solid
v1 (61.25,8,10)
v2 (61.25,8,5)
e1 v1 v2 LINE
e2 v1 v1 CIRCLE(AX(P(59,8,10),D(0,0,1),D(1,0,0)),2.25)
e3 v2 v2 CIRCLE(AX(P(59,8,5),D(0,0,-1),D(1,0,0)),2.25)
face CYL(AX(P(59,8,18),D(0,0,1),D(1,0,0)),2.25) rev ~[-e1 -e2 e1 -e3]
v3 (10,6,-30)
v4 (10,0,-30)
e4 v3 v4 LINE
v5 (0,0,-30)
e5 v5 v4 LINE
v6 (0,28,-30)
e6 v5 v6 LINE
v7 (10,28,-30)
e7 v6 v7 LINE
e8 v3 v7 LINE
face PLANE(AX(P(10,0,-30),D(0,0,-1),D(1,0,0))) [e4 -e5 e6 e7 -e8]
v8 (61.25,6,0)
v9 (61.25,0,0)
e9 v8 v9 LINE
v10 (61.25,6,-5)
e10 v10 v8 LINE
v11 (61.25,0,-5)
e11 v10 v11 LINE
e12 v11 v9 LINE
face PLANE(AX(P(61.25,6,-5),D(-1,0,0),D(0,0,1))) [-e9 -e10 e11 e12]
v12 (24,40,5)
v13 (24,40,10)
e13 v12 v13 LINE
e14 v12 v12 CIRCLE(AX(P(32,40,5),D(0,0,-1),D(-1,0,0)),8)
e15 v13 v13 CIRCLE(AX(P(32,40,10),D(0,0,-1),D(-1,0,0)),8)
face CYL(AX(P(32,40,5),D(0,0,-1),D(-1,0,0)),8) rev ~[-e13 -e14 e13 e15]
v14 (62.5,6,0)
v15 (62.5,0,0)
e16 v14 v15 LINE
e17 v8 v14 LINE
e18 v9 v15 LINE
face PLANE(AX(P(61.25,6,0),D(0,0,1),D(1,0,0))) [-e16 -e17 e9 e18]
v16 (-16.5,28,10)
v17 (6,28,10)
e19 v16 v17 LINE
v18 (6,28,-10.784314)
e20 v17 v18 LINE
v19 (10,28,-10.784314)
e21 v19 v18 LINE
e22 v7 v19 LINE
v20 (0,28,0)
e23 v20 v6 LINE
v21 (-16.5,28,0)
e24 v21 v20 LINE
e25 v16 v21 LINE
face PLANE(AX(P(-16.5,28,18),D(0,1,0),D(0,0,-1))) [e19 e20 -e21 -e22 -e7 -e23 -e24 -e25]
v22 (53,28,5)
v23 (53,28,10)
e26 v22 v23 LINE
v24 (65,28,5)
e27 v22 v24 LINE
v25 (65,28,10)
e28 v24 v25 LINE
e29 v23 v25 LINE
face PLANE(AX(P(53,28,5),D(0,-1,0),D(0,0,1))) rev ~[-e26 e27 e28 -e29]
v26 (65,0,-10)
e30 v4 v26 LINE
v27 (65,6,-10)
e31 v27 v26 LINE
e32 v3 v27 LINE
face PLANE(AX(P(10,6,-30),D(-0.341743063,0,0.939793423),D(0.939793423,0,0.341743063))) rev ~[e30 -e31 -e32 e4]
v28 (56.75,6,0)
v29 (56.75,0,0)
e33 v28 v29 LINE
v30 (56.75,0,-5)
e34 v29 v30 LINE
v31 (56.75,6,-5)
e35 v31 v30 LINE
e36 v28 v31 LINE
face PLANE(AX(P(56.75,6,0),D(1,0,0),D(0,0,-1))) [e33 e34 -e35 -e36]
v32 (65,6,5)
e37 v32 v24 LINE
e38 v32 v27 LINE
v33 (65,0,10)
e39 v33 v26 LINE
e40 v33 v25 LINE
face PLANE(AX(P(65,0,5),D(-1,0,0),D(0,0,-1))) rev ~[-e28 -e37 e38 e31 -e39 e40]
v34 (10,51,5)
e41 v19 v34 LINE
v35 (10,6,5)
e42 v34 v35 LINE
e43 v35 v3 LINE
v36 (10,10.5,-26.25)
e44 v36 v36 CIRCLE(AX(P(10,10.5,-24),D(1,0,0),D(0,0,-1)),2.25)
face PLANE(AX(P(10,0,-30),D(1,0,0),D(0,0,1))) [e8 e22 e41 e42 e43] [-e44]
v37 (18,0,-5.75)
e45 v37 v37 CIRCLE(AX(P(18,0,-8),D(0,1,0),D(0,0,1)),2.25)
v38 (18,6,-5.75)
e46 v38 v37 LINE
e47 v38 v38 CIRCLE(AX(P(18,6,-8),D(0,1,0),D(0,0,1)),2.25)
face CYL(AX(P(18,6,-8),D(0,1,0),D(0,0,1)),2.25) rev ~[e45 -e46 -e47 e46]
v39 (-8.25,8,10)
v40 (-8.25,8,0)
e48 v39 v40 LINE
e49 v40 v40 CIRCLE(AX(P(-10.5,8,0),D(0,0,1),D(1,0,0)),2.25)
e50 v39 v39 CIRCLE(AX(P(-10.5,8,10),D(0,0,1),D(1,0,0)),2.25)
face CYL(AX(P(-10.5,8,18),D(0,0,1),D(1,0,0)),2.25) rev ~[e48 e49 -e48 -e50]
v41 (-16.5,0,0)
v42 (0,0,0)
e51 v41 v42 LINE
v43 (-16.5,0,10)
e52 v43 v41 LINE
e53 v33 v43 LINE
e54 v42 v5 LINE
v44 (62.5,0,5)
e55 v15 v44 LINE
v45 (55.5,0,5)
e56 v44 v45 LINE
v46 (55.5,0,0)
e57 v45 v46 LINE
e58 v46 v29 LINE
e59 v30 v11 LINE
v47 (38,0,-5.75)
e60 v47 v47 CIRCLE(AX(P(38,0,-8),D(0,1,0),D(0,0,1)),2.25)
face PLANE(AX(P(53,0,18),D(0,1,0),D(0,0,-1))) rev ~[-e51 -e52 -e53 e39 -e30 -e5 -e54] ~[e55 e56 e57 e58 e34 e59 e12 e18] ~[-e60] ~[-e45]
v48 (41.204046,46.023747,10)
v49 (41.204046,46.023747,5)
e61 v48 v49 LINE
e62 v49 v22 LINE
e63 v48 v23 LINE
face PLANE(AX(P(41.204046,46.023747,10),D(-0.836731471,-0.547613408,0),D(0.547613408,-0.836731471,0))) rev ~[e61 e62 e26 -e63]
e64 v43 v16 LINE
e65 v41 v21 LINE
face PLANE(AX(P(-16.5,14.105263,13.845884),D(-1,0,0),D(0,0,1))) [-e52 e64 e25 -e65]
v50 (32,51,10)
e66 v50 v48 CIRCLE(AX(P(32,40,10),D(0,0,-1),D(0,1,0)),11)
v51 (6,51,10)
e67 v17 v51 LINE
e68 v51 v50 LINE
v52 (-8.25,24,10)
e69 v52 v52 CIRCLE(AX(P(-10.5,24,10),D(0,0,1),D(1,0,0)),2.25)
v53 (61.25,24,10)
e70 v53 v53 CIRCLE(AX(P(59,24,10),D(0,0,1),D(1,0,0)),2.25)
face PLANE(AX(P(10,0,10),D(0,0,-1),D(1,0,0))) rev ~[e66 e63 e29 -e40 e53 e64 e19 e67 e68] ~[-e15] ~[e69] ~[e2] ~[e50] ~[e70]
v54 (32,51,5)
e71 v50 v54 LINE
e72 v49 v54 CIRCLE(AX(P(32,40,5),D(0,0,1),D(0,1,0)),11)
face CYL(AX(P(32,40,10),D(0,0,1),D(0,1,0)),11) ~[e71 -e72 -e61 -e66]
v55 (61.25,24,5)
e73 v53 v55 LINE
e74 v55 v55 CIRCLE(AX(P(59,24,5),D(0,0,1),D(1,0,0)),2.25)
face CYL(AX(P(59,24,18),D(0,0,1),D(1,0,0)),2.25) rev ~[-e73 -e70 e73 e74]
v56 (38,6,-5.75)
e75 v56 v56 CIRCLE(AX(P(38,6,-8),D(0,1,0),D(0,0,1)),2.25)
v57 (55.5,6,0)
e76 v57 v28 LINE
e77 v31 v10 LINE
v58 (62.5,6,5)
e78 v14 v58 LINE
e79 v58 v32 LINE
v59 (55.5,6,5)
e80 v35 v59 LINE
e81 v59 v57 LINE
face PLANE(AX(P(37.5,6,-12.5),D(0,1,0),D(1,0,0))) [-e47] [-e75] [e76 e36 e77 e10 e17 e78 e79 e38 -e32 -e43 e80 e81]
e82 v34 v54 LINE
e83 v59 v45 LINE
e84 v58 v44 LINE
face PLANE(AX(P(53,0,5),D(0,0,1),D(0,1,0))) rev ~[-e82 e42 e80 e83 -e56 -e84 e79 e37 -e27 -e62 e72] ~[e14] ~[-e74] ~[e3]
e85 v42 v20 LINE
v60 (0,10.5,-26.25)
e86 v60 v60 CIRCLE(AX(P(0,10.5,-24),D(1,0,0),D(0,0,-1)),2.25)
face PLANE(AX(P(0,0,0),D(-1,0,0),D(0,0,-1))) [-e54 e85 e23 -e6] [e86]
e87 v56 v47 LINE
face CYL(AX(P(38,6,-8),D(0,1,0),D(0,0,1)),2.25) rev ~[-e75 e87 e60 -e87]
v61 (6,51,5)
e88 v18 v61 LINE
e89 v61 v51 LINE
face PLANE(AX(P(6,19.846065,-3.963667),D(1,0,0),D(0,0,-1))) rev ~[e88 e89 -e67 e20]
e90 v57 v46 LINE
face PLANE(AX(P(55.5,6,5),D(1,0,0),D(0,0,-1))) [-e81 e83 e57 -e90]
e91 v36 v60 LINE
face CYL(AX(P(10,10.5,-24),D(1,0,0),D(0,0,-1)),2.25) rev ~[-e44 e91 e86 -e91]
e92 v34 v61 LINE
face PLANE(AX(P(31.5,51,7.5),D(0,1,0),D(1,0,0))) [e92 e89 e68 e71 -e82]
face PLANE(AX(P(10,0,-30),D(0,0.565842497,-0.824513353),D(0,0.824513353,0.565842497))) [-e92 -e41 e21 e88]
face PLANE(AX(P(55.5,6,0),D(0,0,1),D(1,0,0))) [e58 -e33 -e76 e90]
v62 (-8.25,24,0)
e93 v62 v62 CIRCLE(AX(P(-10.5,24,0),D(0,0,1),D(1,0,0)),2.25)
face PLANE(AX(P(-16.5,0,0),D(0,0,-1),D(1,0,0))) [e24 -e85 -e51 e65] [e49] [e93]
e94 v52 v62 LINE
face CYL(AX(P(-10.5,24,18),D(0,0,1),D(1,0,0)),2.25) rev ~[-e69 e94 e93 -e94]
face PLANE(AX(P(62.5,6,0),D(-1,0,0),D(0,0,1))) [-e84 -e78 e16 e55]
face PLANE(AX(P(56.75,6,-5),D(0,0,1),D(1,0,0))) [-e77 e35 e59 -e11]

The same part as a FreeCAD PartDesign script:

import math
import FreeCAD as App
import Part
import Sketcher
from FreeCAD import Vector

doc = App.newDocument("Part")
body = doc.addObject("PartDesign::Body", "Body")

# Sketch on XZ plane
sketch1 = body.newObject("Sketcher::SketchObject", "Sketch")
sketch1.AttachmentSupport = (doc.getObject("XZ_Plane"), [""])
sketch1.MapMode = "FlatFace"
sketch1.addGeometry(Part.LineSegment(Vector(0, 0, 0), Vector(-16.5, 0, 0)), False)
sketch1.addGeometry(Part.LineSegment(Vector(-16.5, 0, 0), Vector(-16.5, 10, 0)), False)
sketch1.addGeometry(Part.LineSegment(Vector(-16.5, 10, 0), Vector(10, 10, 0)), False)
sketch1.addGeometry(Part.LineSegment(Vector(10, 10, 0), Vector(10, -30, 0)), False)
sketch1.addGeometry(Part.LineSegment(Vector(10, -30, 0), Vector(0, -30, 0)), False)
sketch1.addGeometry(Part.LineSegment(Vector(0, -30, 0), Vector(0, 0, 0)), False)
sketch1.addConstraint(Sketcher.Constraint("Coincident", 0, 2, 1, 1))
sketch1.addConstraint(Sketcher.Constraint("Coincident", 1, 2, 2, 1))
sketch1.addConstraint(Sketcher.Constraint("Coincident", 2, 2, 3, 1))
sketch1.addConstraint(Sketcher.Constraint("Coincident", 3, 2, 4, 1))
sketch1.addConstraint(Sketcher.Constraint("Coincident", 4, 2, 5, 1))
sketch1.addConstraint(Sketcher.Constraint("Coincident", 5, 2, 0, 1))
sketch1.addConstraint(Sketcher.Constraint("Horizontal", 0))
sketch1.addConstraint(Sketcher.Constraint("Vertical", 1))
sketch1.addConstraint(Sketcher.Constraint("Horizontal", 2))
sketch1.addConstraint(Sketcher.Constraint("Vertical", 3))
sketch1.addConstraint(Sketcher.Constraint("Horizontal", 4))
sketch1.addConstraint(Sketcher.Constraint("Vertical", 5))
sketch1.addConstraint(Sketcher.Constraint("Coincident", 5, 2, -1, 1))
sketch1.addConstraint(Sketcher.Constraint("Equal", 4, 1))
sketch1.addConstraint(Sketcher.Constraint("DistanceX", 4, 2, 4, 1, 10.0))
sketch1.addConstraint(Sketcher.Constraint("DistanceY", 3, 2, 3, 1, 40.0))
sketch1.addConstraint(Sketcher.Constraint("DistanceX", 0, 2, 0, 1, 16.5))
pad1 = body.newObject("PartDesign::Pad", "Pad")
pad1.Profile = sketch1
pad1.Length = 28
pad1.Reversed = True

# Sketch on XZ plane
sketch2 = body.newObject("Sketcher::SketchObject", "Sketch001")
sketch2.AttachmentSupport = (doc.getObject("XZ_Plane"), [""])
sketch2.MapMode = "FlatFace"
sketch2.addGeometry(Part.LineSegment(Vector(10, 5, 0), Vector(10, 10, 0)), False)
sketch2.addGeometry(Part.LineSegment(Vector(10, 10, 0), Vector(53, 10, 0)), False)
sketch2.addGeometry(Part.LineSegment(Vector(53, 10, 0), Vector(53, 5, 0)), False)
sketch2.addGeometry(Part.LineSegment(Vector(53, 5, 0), Vector(10, 5, 0)), False)
sketch2.addConstraint(Sketcher.Constraint("Coincident", 0, 2, 1, 1))
sketch2.addConstraint(Sketcher.Constraint("Coincident", 1, 2, 2, 1))
sketch2.addConstraint(Sketcher.Constraint("Coincident", 2, 2, 3, 1))
sketch2.addConstraint(Sketcher.Constraint("Coincident", 3, 2, 0, 1))
sketch2.addConstraint(Sketcher.Constraint("Vertical", 0))
sketch2.addConstraint(Sketcher.Constraint("Horizontal", 1))
sketch2.addConstraint(Sketcher.Constraint("Vertical", 2))
sketch2.addConstraint(Sketcher.Constraint("Horizontal", 3))
sketch2.addConstraint(Sketcher.Constraint("DistanceX", 1, 1, 1, 2, 43.0))
sketch2.addConstraint(Sketcher.Constraint("DistanceY", 0, 1, 0, 2, 5.0))
sketch2.addConstraint(Sketcher.Constraint("DistanceX", -1, 1, 0, 2, 10.0))
sketch2.addConstraint(Sketcher.Constraint("DistanceY", -1, 1, 0, 2, 10.0))
pad2 = body.newObject("PartDesign::Pad", "Pad001")
pad2.Profile = sketch2
pad2.Length = 51
pad2.Reversed = True

# Sketch on XY plane
sketch3 = body.newObject("Sketcher::SketchObject", "Sketch002")
sketch3.AttachmentSupport = (doc.getObject("XY_Plane"), [""])
sketch3.MapMode = "FlatFace"
sketch3.AttachmentOffset = App.Placement(Vector(0, 0, 5), App.Rotation())
sketch3.addGeometry(Part.Circle(Vector(32, 40, 0), Vector(0, 0, 1), 8), False)
sketch3.addConstraint(Sketcher.Constraint("Diameter", 0, 16.0))
sketch3.addConstraint(Sketcher.Constraint("DistanceX", -1, 1, 0, 3, 32.0))
sketch3.addConstraint(Sketcher.Constraint("DistanceY", -1, 1, 0, 3, 40.0))
pocket1 = body.newObject("PartDesign::Pocket", "Pocket")
pocket1.Profile = sketch3
pocket1.Type = "ThroughAll"
pocket1.Reversed = True

# Sketch on YZ plane
sketch4 = body.newObject("Sketcher::SketchObject", "Sketch003")
sketch4.AttachmentSupport = (doc.getObject("YZ_Plane"), [""])
sketch4.MapMode = "FlatFace"
sketch4.AttachmentOffset = App.Placement(Vector(0, 0, -16.5), App.Rotation())
sketch4.addGeometry(Part.LineSegment(Vector(28, 10, 0), Vector(0, 10, 0)), False)
sketch4.addGeometry(Part.LineSegment(Vector(0, 10, 0), Vector(0, 18, 0)), False)
sketch4.addGeometry(Part.LineSegment(Vector(0, 18, 0), Vector(12, 18, 0)), False)
sketch4.addGeometry(Part.ArcOfCircle(Part.Circle(Vector(16, 18, 0), Vector(0, 0, 1), 4), math.radians(180), math.radians(360)), False)
sketch4.addGeometry(Part.LineSegment(Vector(20, 18, 0), Vector(28, 18, 0)), False)
sketch4.addGeometry(Part.LineSegment(Vector(28, 18, 0), Vector(28, 10, 0)), False)
sketch4.addConstraint(Sketcher.Constraint("Coincident", 0, 2, 1, 1))
sketch4.addConstraint(Sketcher.Constraint("Coincident", 1, 2, 2, 1))
sketch4.addConstraint(Sketcher.Constraint("Coincident", 2, 2, 3, 1))
sketch4.addConstraint(Sketcher.Constraint("Coincident", 3, 2, 4, 1))
sketch4.addConstraint(Sketcher.Constraint("Coincident", 4, 2, 5, 1))
sketch4.addConstraint(Sketcher.Constraint("Coincident", 5, 2, 0, 1))
sketch4.addConstraint(Sketcher.Constraint("Horizontal", 0))
sketch4.addConstraint(Sketcher.Constraint("Vertical", 1))
sketch4.addConstraint(Sketcher.Constraint("Horizontal", 2))
sketch4.addConstraint(Sketcher.Constraint("Horizontal", 4))
sketch4.addConstraint(Sketcher.Constraint("Vertical", 5))
sketch4.addConstraint(Sketcher.Constraint("PointOnObject", 0, 2, -2))
sketch4.addConstraint(Sketcher.Constraint("Horizontal", 3, 3, 1, 2))
sketch4.addConstraint(Sketcher.Constraint("Horizontal", 2, 2, 3, 2))
sketch4.addConstraint(Sketcher.Constraint("Equal", 4, 1))
sketch4.addConstraint(Sketcher.Constraint("Radius", 3, 4.0))
sketch4.addConstraint(Sketcher.Constraint("DistanceX", 0, 2, 0, 1, 28.0))
sketch4.addConstraint(Sketcher.Constraint("DistanceX", 2, 1, 2, 2, 12.0))
sketch4.addConstraint(Sketcher.Constraint("DistanceY", -1, 1, 3, 3, 18.0))
pad3 = body.newObject("PartDesign::Pad", "Pad002")
pad3.Profile = sketch4
pad3.Length = 12

# Sketch on YZ plane
sketch5 = body.newObject("Sketcher::SketchObject", "Sketch004")
sketch5.AttachmentSupport = (doc.getObject("YZ_Plane"), [""])
sketch5.MapMode = "FlatFace"
sketch5.AttachmentOffset = App.Placement(Vector(0, 0, 53), App.Rotation())
sketch5.addGeometry(Part.LineSegment(Vector(12, 18, 0), Vector(0, 18, 0)), False)
sketch5.addGeometry(Part.LineSegment(Vector(0, 18, 0), Vector(0, 5, 0)), False)
sketch5.addGeometry(Part.LineSegment(Vector(0, 5, 0), Vector(28, 5, 0)), False)
sketch5.addGeometry(Part.LineSegment(Vector(28, 5, 0), Vector(28, 18, 0)), False)
sketch5.addGeometry(Part.LineSegment(Vector(28, 18, 0), Vector(20, 18, 0)), False)
sketch5.addGeometry(Part.ArcOfCircle(Part.Circle(Vector(16, 18, 0), Vector(0, 0, 1), 4), math.radians(180), math.radians(360)), False)
sketch5.addConstraint(Sketcher.Constraint("Coincident", 0, 2, 1, 1))
sketch5.addConstraint(Sketcher.Constraint("Coincident", 1, 2, 2, 1))
sketch5.addConstraint(Sketcher.Constraint("Coincident", 2, 2, 3, 1))
sketch5.addConstraint(Sketcher.Constraint("Coincident", 3, 2, 4, 1))
sketch5.addConstraint(Sketcher.Constraint("Coincident", 4, 2, 5, 2))
sketch5.addConstraint(Sketcher.Constraint("Coincident", 5, 1, 0, 1))
sketch5.addConstraint(Sketcher.Constraint("Horizontal", 0))
sketch5.addConstraint(Sketcher.Constraint("Vertical", 1))
sketch5.addConstraint(Sketcher.Constraint("Horizontal", 2))
sketch5.addConstraint(Sketcher.Constraint("Vertical", 3))
sketch5.addConstraint(Sketcher.Constraint("Horizontal", 4))
sketch5.addConstraint(Sketcher.Constraint("PointOnObject", 0, 2, -2))
sketch5.addConstraint(Sketcher.Constraint("Horizontal", 5, 3, 0, 2))
sketch5.addConstraint(Sketcher.Constraint("Horizontal", 0, 2, 3, 2))
sketch5.addConstraint(Sketcher.Constraint("Radius", 5, 4.0))
sketch5.addConstraint(Sketcher.Constraint("DistanceX", 0, 2, 0, 1, 12.0))
sketch5.addConstraint(Sketcher.Constraint("DistanceX", 2, 1, 2, 2, 28.0))
sketch5.addConstraint(Sketcher.Constraint("DistanceY", 1, 2, 1, 1, 13.0))
sketch5.addConstraint(Sketcher.Constraint("DistanceY", -1, 1, 5, 3, 18.0))
pad4 = body.newObject("PartDesign::Pad", "Pad003")
pad4.Profile = sketch5
pad4.Length = 12

# Sketch on XY plane
sketch6 = body.newObject("Sketcher::SketchObject", "Sketch005")
sketch6.AttachmentSupport = (doc.getObject("XY_Plane"), [""])
sketch6.MapMode = "FlatFace"
sketch6.AttachmentOffset = App.Placement(Vector(0, 0, 18), App.Rotation())
sketch6.addGeometry(Part.Circle(Vector(-10.5, 24, 0), Vector(0, 0, 1), 2.25), False)
sketch6.addGeometry(Part.Circle(Vector(-10.5, 8, 0), Vector(0, 0, 1), 2.25), False)
sketch6.addGeometry(Part.Circle(Vector(59, 8, 0), Vector(0, 0, 1), 2.25), False)
sketch6.addGeometry(Part.Circle(Vector(59, 24, 0), Vector(0, 0, 1), 2.25), False)
sketch6.addConstraint(Sketcher.Constraint("Equal", 0, 1))
sketch6.addConstraint(Sketcher.Constraint("Equal", 1, 2))
sketch6.addConstraint(Sketcher.Constraint("Equal", 2, 3))
sketch6.addConstraint(Sketcher.Constraint("Horizontal", 1, 3, 2, 3))
sketch6.addConstraint(Sketcher.Constraint("Horizontal", 0, 3, 3, 3))
sketch6.addConstraint(Sketcher.Constraint("Vertical", 0, 3, 1, 3))
sketch6.addConstraint(Sketcher.Constraint("Vertical", 2, 3, 3, 3))
sketch6.addConstraint(Sketcher.Constraint("Diameter", 0, 4.5))
sketch6.addConstraint(Sketcher.Constraint("DistanceY", -1, 1, 0, 3, 24.0))
sketch6.addConstraint(Sketcher.Constraint("DistanceY", -1, 1, 1, 3, 8.0))
sketch6.addConstraint(Sketcher.Constraint("DistanceX", -1, 1, 2, 3, 59.0))
sketch6.addConstraint(Sketcher.Constraint("DistanceX", 0, 3, -1, 1, 10.5))
pocket2 = body.newObject("PartDesign::Pocket", "Pocket001")
pocket2.Profile = sketch6
pocket2.Type = "ThroughAll"

# Sketch on XZ plane
sketch7 = body.newObject("Sketcher::SketchObject", "Sketch006")
sketch7.AttachmentSupport = (doc.getObject("XZ_Plane"), [""])
sketch7.MapMode = "FlatFace"
sketch7.addGeometry(Part.LineSegment(Vector(10, -30, 0), Vector(10, 5, 0)), False)
sketch7.addGeometry(Part.LineSegment(Vector(10, 5, 0), Vector(65, 5, 0)), False)
sketch7.addGeometry(Part.LineSegment(Vector(65, 5, 0), Vector(65, -30, 0)), False)
sketch7.addGeometry(Part.LineSegment(Vector(65, -30, 0), Vector(10, -30, 0)), False)
sketch7.addConstraint(Sketcher.Constraint("Coincident", 0, 2, 1, 1))
sketch7.addConstraint(Sketcher.Constraint("Coincident", 1, 2, 2, 1))
sketch7.addConstraint(Sketcher.Constraint("Coincident", 2, 2, 3, 1))
sketch7.addConstraint(Sketcher.Constraint("Coincident", 3, 2, 0, 1))
sketch7.addConstraint(Sketcher.Constraint("Vertical", 0))
sketch7.addConstraint(Sketcher.Constraint("Horizontal", 1))
sketch7.addConstraint(Sketcher.Constraint("Vertical", 2))
sketch7.addConstraint(Sketcher.Constraint("Horizontal", 3))
sketch7.addConstraint(Sketcher.Constraint("DistanceX", 1, 1, 1, 2, 55.0))
sketch7.addConstraint(Sketcher.Constraint("DistanceY", 0, 1, 0, 2, 35.0))
sketch7.addConstraint(Sketcher.Constraint("DistanceX", -1, 1, 0, 2, 10.0))
sketch7.addConstraint(Sketcher.Constraint("DistanceY", -1, 1, 0, 2, 5.0))
pad5 = body.newObject("PartDesign::Pad", "Pad004")
pad5.Profile = sketch7
pad5.Length = 6
pad5.Reversed = True

# Sketch on XZ plane
sketch8 = body.newObject("Sketcher::SketchObject", "Sketch007")
sketch8.AttachmentSupport = (doc.getObject("XZ_Plane"), [""])
sketch8.MapMode = "FlatFace"
sketch8.AttachmentOffset = App.Placement(Vector(0, 0, -6), App.Rotation())
sketch8.addGeometry(Part.LineSegment(Vector(55.5, 5, 0), Vector(62.5, 5, 0)), False)
sketch8.addGeometry(Part.LineSegment(Vector(62.5, 5, 0), Vector(62.5, 0, 0)), False)
sketch8.addGeometry(Part.LineSegment(Vector(62.5, 0, 0), Vector(61.25, 0, 0)), False)
sketch8.addGeometry(Part.LineSegment(Vector(61.25, 0, 0), Vector(61.25, -5, 0)), False)
sketch8.addGeometry(Part.LineSegment(Vector(61.25, -5, 0), Vector(56.75, -5, 0)), False)
sketch8.addGeometry(Part.LineSegment(Vector(56.75, -5, 0), Vector(56.75, 0, 0)), False)
sketch8.addGeometry(Part.LineSegment(Vector(56.75, 0, 0), Vector(55.5, 0, 0)), False)
sketch8.addGeometry(Part.LineSegment(Vector(55.5, 0, 0), Vector(55.5, 5, 0)), False)
sketch8.addConstraint(Sketcher.Constraint("Coincident", 0, 2, 1, 1))
sketch8.addConstraint(Sketcher.Constraint("Coincident", 1, 2, 2, 1))
sketch8.addConstraint(Sketcher.Constraint("Coincident", 2, 2, 3, 1))
sketch8.addConstraint(Sketcher.Constraint("Coincident", 3, 2, 4, 1))
sketch8.addConstraint(Sketcher.Constraint("Coincident", 4, 2, 5, 1))
sketch8.addConstraint(Sketcher.Constraint("Coincident", 5, 2, 6, 1))
sketch8.addConstraint(Sketcher.Constraint("Coincident", 6, 2, 7, 1))
sketch8.addConstraint(Sketcher.Constraint("Coincident", 7, 2, 0, 1))
sketch8.addConstraint(Sketcher.Constraint("Horizontal", 0))
sketch8.addConstraint(Sketcher.Constraint("Vertical", 1))
sketch8.addConstraint(Sketcher.Constraint("Horizontal", 2))
sketch8.addConstraint(Sketcher.Constraint("Vertical", 3))
sketch8.addConstraint(Sketcher.Constraint("Horizontal", 4))
sketch8.addConstraint(Sketcher.Constraint("Vertical", 5))
sketch8.addConstraint(Sketcher.Constraint("Horizontal", 6))
sketch8.addConstraint(Sketcher.Constraint("Vertical", 7))
sketch8.addConstraint(Sketcher.Constraint("PointOnObject", 1, 2, -1))
sketch8.addConstraint(Sketcher.Constraint("PointOnObject", 5, 2, -1))
sketch8.addConstraint(Sketcher.Constraint("Equal", 2, 6))
sketch8.addConstraint(Sketcher.Constraint("Equal", 1, 3))
sketch8.addConstraint(Sketcher.Constraint("DistanceX", 0, 1, 0, 2, 7.0))
sketch8.addConstraint(Sketcher.Constraint("DistanceY", 1, 2, 1, 1, 5.0))
sketch8.addConstraint(Sketcher.Constraint("DistanceX", 4, 2, 4, 1, 4.5))
sketch8.addConstraint(Sketcher.Constraint("DistanceX", -1, 1, 0, 2, 62.5))
pocket3 = body.newObject("PartDesign::Pocket", "Pocket002")
pocket3.Profile = sketch8
pocket3.Type = "ThroughAll"
pocket3.Reversed = True

# Sketch on YZ plane
sketch9 = body.newObject("Sketcher::SketchObject", "Sketch008")
sketch9.AttachmentSupport = (doc.getObject("YZ_Plane"), [""])
sketch9.MapMode = "FlatFace"
sketch9.AttachmentOffset = App.Placement(Vector(0, 0, 10), App.Rotation())
sketch9.addGeometry(Part.LineSegment(Vector(51, 5, 0), Vector(0, -30, 0)), False)
sketch9.addGeometry(Part.LineSegment(Vector(0, -30, 0), Vector(0, 10, 0)), False)
sketch9.addGeometry(Part.LineSegment(Vector(0, 10, 0), Vector(51, 10, 0)), False)
sketch9.addGeometry(Part.LineSegment(Vector(51, 10, 0), Vector(51, 5, 0)), False)
sketch9.addConstraint(Sketcher.Constraint("Coincident", 0, 2, 1, 1))
sketch9.addConstraint(Sketcher.Constraint("Coincident", 1, 2, 2, 1))
sketch9.addConstraint(Sketcher.Constraint("Coincident", 2, 2, 3, 1))
sketch9.addConstraint(Sketcher.Constraint("Coincident", 3, 2, 0, 1))
sketch9.addConstraint(Sketcher.Constraint("Vertical", 1))
sketch9.addConstraint(Sketcher.Constraint("Horizontal", 2))
sketch9.addConstraint(Sketcher.Constraint("Vertical", 3))
sketch9.addConstraint(Sketcher.Constraint("PointOnObject", 0, 2, -2))
sketch9.addConstraint(Sketcher.Constraint("DistanceX", 2, 1, 2, 2, 51.0))
sketch9.addConstraint(Sketcher.Constraint("DistanceY", 1, 1, 1, 2, 40.0))
sketch9.addConstraint(Sketcher.Constraint("DistanceY", 3, 2, 3, 1, 5.0))
sketch9.addConstraint(Sketcher.Constraint("DistanceY", 0, 2, -1, 1, 30.0))
pad6 = body.newObject("PartDesign::Pad", "Pad005")
pad6.Profile = sketch9
pad6.Length = 4
pad6.Reversed = True

# Sketch on YZ plane
sketch10 = body.newObject("Sketcher::SketchObject", "Sketch009")
sketch10.AttachmentSupport = (doc.getObject("YZ_Plane"), [""])
sketch10.MapMode = "FlatFace"
sketch10.AttachmentOffset = App.Placement(Vector(0, 0, 10), App.Rotation())
sketch10.addGeometry(Part.Circle(Vector(10.5, -24, 0), Vector(0, 0, 1), 2.25), False)
sketch10.addConstraint(Sketcher.Constraint("Diameter", 0, 4.5))
sketch10.addConstraint(Sketcher.Constraint("DistanceY", 0, 3, -1, 1, 24.0))
sketch10.addConstraint(Sketcher.Constraint("DistanceX", -1, 1, 0, 3, 10.5))
pocket4 = body.newObject("PartDesign::Pocket", "Pocket003")
pocket4.Profile = sketch10
pocket4.Type = "ThroughAll"

# Sketch on XZ plane
sketch11 = body.newObject("Sketcher::SketchObject", "Sketch010")
sketch11.AttachmentSupport = (doc.getObject("XZ_Plane"), [""])
sketch11.MapMode = "FlatFace"
sketch11.AttachmentOffset = App.Placement(Vector(0, 0, -6), App.Rotation())
sketch11.addGeometry(Part.Circle(Vector(18, -8, 0), Vector(0, 0, 1), 2.25), False)
sketch11.addConstraint(Sketcher.Constraint("Diameter", 0, 4.5))
sketch11.addConstraint(Sketcher.Constraint("DistanceX", -1, 1, 0, 3, 18.0))
sketch11.addConstraint(Sketcher.Constraint("DistanceY", 0, 3, -1, 1, 8.0))
pocket5 = body.newObject("PartDesign::Pocket", "Pocket004")
pocket5.Profile = sketch11
pocket5.Type = "UpToFirst"
pocket5.Reversed = True

# Sketch on XZ plane
sketch12 = body.newObject("Sketcher::SketchObject", "Sketch011")
sketch12.AttachmentSupport = (doc.getObject("XZ_Plane"), [""])
sketch12.MapMode = "FlatFace"
sketch12.AttachmentOffset = App.Placement(Vector(0, 0, -6), App.Rotation())
sketch12.addGeometry(Part.Circle(Vector(38, -8, 0), Vector(0, 0, 1), 2.25), False)
sketch12.addConstraint(Sketcher.Constraint("Diameter", 0, 4.5))
sketch12.addConstraint(Sketcher.Constraint("DistanceX", -1, 1, 0, 3, 38.0))
sketch12.addConstraint(Sketcher.Constraint("DistanceY", 0, 3, -1, 1, 8.0))
pocket6 = body.newObject("PartDesign::Pocket", "Pocket005")
pocket6.Profile = sketch12
pocket6.Type = "UpToFirst"
pocket6.Reversed = True

# Sketch on XZ plane
sketch13 = body.newObject("Sketcher::SketchObject", "Sketch012")
sketch13.AttachmentSupport = (doc.getObject("XZ_Plane"), [""])
sketch13.MapMode = "FlatFace"
sketch13.AttachmentOffset = App.Placement(Vector(0, 0, -6), App.Rotation())
sketch13.addGeometry(Part.LineSegment(Vector(10, -30, 0), Vector(65, -10, 0)), False)
sketch13.addGeometry(Part.LineSegment(Vector(65, -10, 0), Vector(65, -30, 0)), False)
sketch13.addGeometry(Part.LineSegment(Vector(65, -30, 0), Vector(10, -30, 0)), False)
sketch13.addConstraint(Sketcher.Constraint("Coincident", 0, 2, 1, 1))
sketch13.addConstraint(Sketcher.Constraint("Coincident", 1, 2, 2, 1))
sketch13.addConstraint(Sketcher.Constraint("Coincident", 2, 2, 0, 1))
sketch13.addConstraint(Sketcher.Constraint("Vertical", 1))
sketch13.addConstraint(Sketcher.Constraint("Horizontal", 2))
sketch13.addConstraint(Sketcher.Constraint("DistanceX", 2, 2, 2, 1, 55.0))
sketch13.addConstraint(Sketcher.Constraint("DistanceY", 1, 2, 1, 1, 20.0))
sketch13.addConstraint(Sketcher.Constraint("DistanceX", -1, 1, 0, 2, 65.0))
sketch13.addConstraint(Sketcher.Constraint("DistanceY", 0, 2, -1, 1, 10.0))
pocket7 = body.newObject("PartDesign::Pocket", "Pocket006")
pocket7.Profile = sketch13
pocket7.Type = "ThroughAll"
pocket7.Reversed = True

# Sketch on XY plane
sketch14 = body.newObject("Sketcher::SketchObject", "Sketch013")
sketch14.AttachmentSupport = (doc.getObject("XY_Plane"), [""])
sketch14.MapMode = "FlatFace"
sketch14.AttachmentOffset = App.Placement(Vector(0, 0, 10), App.Rotation())
sketch14.addGeometry(Part.LineSegment(Vector(41.204046, 46.023747, 0), Vector(53, 28, 0)), False)
sketch14.addGeometry(Part.LineSegment(Vector(53, 28, 0), Vector(53, 51, 0)), False)
sketch14.addGeometry(Part.LineSegment(Vector(53, 51, 0), Vector(32, 51, 0)), False)
sketch14.addGeometry(Part.ArcOfCircle(Part.Circle(Vector(32, 40, 0), Vector(0, 0, 1), 11), math.radians(33.203436), math.radians(90)), False)
sketch14.addConstraint(Sketcher.Constraint("Coincident", 0, 2, 1, 1))
sketch14.addConstraint(Sketcher.Constraint("Coincident", 1, 2, 2, 1))
sketch14.addConstraint(Sketcher.Constraint("Tangent", 2, 2, 3, 2))
sketch14.addConstraint(Sketcher.Constraint("Tangent", 3, 1, 0, 1))
sketch14.addConstraint(Sketcher.Constraint("Vertical", 1))
sketch14.addConstraint(Sketcher.Constraint("Horizontal", 2))
sketch14.addConstraint(Sketcher.Constraint("Radius", 3, 11.0))
sketch14.addConstraint(Sketcher.Constraint("DistanceX", 2, 2, 2, 1, 21.0))
sketch14.addConstraint(Sketcher.Constraint("DistanceY", 1, 1, 1, 2, 23.0))
sketch14.addConstraint(Sketcher.Constraint("DistanceX", -1, 1, 3, 3, 32.0))
sketch14.addConstraint(Sketcher.Constraint("DistanceY", -1, 1, 3, 3, 40.0))
pocket8 = body.newObject("PartDesign::Pocket", "Pocket007")
pocket8.Profile = sketch14
pocket8.Type = "ThroughAll"

# Sketch on YZ plane
sketch15 = body.newObject("Sketcher::SketchObject", "Sketch014")
sketch15.AttachmentSupport = (doc.getObject("YZ_Plane"), [""])
sketch15.MapMode = "FlatFace"
sketch15.AttachmentOffset = App.Placement(Vector(0, 0, -16.5), App.Rotation())
sketch15.addGeometry(Part.LineSegment(Vector(28, 10, 0), Vector(0, 10, 0)), False)
sketch15.addGeometry(Part.LineSegment(Vector(0, 10, 0), Vector(0, 18, 0)), False)
sketch15.addGeometry(Part.LineSegment(Vector(0, 18, 0), Vector(28, 18, 0)), False)
sketch15.addGeometry(Part.LineSegment(Vector(28, 18, 0), Vector(28, 10, 0)), False)
sketch15.addConstraint(Sketcher.Constraint("Coincident", 0, 2, 1, 1))
sketch15.addConstraint(Sketcher.Constraint("Coincident", 1, 2, 2, 1))
sketch15.addConstraint(Sketcher.Constraint("Coincident", 2, 2, 3, 1))
sketch15.addConstraint(Sketcher.Constraint("Coincident", 3, 2, 0, 1))
sketch15.addConstraint(Sketcher.Constraint("Horizontal", 0))
sketch15.addConstraint(Sketcher.Constraint("Vertical", 1))
sketch15.addConstraint(Sketcher.Constraint("Horizontal", 2))
sketch15.addConstraint(Sketcher.Constraint("Vertical", 3))
sketch15.addConstraint(Sketcher.Constraint("PointOnObject", 0, 2, -2))
sketch15.addConstraint(Sketcher.Constraint("DistanceX", 0, 2, 0, 1, 28.0))
sketch15.addConstraint(Sketcher.Constraint("DistanceY", 1, 1, 1, 2, 8.0))
sketch15.addConstraint(Sketcher.Constraint("DistanceY", -1, 1, 0, 2, 10.0))
pocket9 = body.newObject("PartDesign::Pocket", "Pocket008")
pocket9.Profile = sketch15
pocket9.Type = "ThroughAll"
pocket9.Reversed = True

doc.recompute()
